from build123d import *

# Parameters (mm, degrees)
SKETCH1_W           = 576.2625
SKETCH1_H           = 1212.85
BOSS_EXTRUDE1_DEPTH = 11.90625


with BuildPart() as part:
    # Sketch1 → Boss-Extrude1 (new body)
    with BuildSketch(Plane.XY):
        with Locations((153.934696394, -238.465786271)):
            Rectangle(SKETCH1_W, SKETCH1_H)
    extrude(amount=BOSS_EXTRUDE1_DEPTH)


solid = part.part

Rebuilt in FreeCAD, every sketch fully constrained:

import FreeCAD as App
import Part
import Sketcher
Q = App.Units.Quantity

doc = App.newDocument("Part")
body = doc.addObject("PartDesign::Body", "Body")

# Sketch on XY plane
sketch1 = body.newObject("Sketcher::SketchObject", "Sketch")
sketch1.AttachmentSupport = (doc.getObject("XY_Plane"), [""])
sketch1.MapMode = "FlatFace"
sketch1.addGeometry([
    Part.LineSegment(App.Vector(-134.196554, 367.959214, 0), App.Vector(-134.196554, -844.890786, 0)),
    Part.LineSegment(App.Vector(-134.196554, -844.890786, 0), App.Vector(442.065946, -844.890786, 0)),
    Part.LineSegment(App.Vector(442.065946, -844.890786, 0), App.Vector(442.065946, 367.959214, 0)),
    Part.LineSegment(App.Vector(442.065946, 367.959214, 0), App.Vector(-134.196554, 367.959214, 0)),
], False)
sketch1.addConstraint([
    Sketcher.Constraint("Coincident", 0, 2, 1, 1),
    Sketcher.Constraint("Coincident", 1, 2, 2, 1),
    Sketcher.Constraint("Coincident", 2, 2, 3, 1),
    Sketcher.Constraint("Coincident", 3, 2, 0, 1),
    Sketcher.Constraint("Vertical", 0),
    Sketcher.Constraint("Horizontal", 1),
    Sketcher.Constraint("Vertical", 2),
    Sketcher.Constraint("Horizontal", 3),
    Sketcher.Constraint("DistanceY", 0, 2, 0, 1, Q("47.75 in")),
    Sketcher.Constraint("DistanceX", 1, 1, 1, 2, Q("22.6875 in")),
    Sketcher.Constraint("DistanceX", 0, 2, -1, 1, 134.196554),
    Sketcher.Constraint("DistanceY", 0, 2, -1, 1, 844.890786),
])
pad1 = body.newObject("PartDesign::Pad", "Pad")
pad1.Profile = sketch1
pad1.Length = Q("0.46875 in")

doc.recompute()
